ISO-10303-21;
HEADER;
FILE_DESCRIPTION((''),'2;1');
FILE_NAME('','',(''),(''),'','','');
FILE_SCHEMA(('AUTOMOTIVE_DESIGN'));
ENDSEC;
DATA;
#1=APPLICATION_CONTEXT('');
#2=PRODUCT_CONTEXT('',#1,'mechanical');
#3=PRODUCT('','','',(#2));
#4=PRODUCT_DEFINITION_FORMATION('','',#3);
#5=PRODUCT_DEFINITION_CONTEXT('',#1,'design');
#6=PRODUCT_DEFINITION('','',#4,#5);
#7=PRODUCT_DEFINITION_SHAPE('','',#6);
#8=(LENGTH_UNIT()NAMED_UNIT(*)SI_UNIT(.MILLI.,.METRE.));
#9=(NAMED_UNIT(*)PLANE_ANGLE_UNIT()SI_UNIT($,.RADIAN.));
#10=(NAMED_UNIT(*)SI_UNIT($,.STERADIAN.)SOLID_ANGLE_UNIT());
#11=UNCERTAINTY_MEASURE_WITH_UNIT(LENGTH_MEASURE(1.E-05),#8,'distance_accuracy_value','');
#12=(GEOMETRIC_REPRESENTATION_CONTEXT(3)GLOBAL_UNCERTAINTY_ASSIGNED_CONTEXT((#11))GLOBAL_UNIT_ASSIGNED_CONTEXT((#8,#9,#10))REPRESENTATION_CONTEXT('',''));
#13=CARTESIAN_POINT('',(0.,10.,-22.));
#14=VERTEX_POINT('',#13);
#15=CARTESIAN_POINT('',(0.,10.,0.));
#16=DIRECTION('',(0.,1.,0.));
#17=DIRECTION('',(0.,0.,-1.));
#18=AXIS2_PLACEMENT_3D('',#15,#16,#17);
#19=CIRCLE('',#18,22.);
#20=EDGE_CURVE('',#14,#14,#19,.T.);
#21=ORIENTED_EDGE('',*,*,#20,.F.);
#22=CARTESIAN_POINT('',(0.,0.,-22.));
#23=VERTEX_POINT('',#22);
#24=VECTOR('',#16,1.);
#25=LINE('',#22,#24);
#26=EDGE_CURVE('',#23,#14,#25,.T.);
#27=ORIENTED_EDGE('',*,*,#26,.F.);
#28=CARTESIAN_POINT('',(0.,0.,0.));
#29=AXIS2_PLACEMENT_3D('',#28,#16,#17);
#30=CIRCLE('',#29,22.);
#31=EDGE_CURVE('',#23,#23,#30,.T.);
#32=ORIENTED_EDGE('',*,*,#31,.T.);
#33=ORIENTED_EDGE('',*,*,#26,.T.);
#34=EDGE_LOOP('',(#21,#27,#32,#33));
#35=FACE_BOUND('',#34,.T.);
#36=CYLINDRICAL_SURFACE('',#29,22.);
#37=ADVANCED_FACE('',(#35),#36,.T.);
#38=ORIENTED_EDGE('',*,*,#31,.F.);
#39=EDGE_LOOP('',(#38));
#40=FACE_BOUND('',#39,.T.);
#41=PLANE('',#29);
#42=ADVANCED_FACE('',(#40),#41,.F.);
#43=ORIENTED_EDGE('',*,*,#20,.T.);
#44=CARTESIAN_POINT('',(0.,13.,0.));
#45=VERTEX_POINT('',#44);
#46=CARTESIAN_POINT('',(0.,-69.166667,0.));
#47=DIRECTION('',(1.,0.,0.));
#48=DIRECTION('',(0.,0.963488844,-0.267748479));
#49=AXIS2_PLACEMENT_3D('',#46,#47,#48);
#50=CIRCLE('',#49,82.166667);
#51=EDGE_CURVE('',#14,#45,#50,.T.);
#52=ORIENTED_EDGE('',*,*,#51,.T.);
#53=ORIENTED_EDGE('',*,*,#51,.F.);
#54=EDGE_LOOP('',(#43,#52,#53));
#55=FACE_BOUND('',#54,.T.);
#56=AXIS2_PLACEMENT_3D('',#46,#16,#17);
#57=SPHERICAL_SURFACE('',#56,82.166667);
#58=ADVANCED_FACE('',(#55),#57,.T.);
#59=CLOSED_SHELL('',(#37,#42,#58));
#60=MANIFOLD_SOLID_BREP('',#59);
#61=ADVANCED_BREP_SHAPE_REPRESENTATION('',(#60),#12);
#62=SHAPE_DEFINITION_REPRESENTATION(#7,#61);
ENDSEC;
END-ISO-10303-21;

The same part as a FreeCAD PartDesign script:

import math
import FreeCAD as App
import Part
import Sketcher

V = App.Vector

doc = App.newDocument("Part")
body = doc.addObject("PartDesign::Body", "Body")

# Sketch on YZ plane
sketch1 = doc.addObject("Sketcher::SketchObject", "Sketch")
body.addObject(sketch1)
sketch1.AttachmentSupport = (doc.YZ_Plane, [""])
sketch1.MapMode = "FlatFace"
sketch1.addGeometry([
    Part.LineSegment(V(0, 0, 0), V(0, -22, 0)),
    Part.LineSegment(V(0, -22, 0), V(10, -22, 0)),
    Part.ArcOfCircle(Part.Circle(V(-69.166667, 0, 0), V(0, 0, 1), 82.166667), math.radians(-15.530332), math.radians(0)),
    Part.LineSegment(V(13, 0, 0), V(0, 0, 0)),
], False)
sketch1.addConstraint([
    Sketcher.Constraint("Coincident", 0, 2, 1, 1),
    Sketcher.Constraint("Coincident", 1, 2, 2, 1),
    Sketcher.Constraint("Coincident", 2, 2, 3, 1),
    Sketcher.Constraint("Coincident", 3, 2, 0, 1),
    Sketcher.Constraint("Vertical", 0),
    Sketcher.Constraint("Horizontal", 1),
    Sketcher.Constraint("Horizontal", 3),
    Sketcher.Constraint("Coincident", 3, 2, -1, 1),
    Sketcher.Constraint("PointOnObject", 2, 3, -1),
    Sketcher.Constraint("DistanceX", 1, 1, 1, 2, 10.0),
    Sketcher.Constraint("DistanceX", 3, 2, 3, 1, 13.0),
    Sketcher.Constraint("DistanceY", 0, 2, 0, 1, 22.0),
])
revolution = doc.addObject("PartDesign::Revolution", "Revolution")
body.addObject(revolution)
revolution.Profile = sketch1
revolution.ReferenceAxis = (sketch1, ["H_Axis"])
revolution.Angle = 360

doc.recompute()
